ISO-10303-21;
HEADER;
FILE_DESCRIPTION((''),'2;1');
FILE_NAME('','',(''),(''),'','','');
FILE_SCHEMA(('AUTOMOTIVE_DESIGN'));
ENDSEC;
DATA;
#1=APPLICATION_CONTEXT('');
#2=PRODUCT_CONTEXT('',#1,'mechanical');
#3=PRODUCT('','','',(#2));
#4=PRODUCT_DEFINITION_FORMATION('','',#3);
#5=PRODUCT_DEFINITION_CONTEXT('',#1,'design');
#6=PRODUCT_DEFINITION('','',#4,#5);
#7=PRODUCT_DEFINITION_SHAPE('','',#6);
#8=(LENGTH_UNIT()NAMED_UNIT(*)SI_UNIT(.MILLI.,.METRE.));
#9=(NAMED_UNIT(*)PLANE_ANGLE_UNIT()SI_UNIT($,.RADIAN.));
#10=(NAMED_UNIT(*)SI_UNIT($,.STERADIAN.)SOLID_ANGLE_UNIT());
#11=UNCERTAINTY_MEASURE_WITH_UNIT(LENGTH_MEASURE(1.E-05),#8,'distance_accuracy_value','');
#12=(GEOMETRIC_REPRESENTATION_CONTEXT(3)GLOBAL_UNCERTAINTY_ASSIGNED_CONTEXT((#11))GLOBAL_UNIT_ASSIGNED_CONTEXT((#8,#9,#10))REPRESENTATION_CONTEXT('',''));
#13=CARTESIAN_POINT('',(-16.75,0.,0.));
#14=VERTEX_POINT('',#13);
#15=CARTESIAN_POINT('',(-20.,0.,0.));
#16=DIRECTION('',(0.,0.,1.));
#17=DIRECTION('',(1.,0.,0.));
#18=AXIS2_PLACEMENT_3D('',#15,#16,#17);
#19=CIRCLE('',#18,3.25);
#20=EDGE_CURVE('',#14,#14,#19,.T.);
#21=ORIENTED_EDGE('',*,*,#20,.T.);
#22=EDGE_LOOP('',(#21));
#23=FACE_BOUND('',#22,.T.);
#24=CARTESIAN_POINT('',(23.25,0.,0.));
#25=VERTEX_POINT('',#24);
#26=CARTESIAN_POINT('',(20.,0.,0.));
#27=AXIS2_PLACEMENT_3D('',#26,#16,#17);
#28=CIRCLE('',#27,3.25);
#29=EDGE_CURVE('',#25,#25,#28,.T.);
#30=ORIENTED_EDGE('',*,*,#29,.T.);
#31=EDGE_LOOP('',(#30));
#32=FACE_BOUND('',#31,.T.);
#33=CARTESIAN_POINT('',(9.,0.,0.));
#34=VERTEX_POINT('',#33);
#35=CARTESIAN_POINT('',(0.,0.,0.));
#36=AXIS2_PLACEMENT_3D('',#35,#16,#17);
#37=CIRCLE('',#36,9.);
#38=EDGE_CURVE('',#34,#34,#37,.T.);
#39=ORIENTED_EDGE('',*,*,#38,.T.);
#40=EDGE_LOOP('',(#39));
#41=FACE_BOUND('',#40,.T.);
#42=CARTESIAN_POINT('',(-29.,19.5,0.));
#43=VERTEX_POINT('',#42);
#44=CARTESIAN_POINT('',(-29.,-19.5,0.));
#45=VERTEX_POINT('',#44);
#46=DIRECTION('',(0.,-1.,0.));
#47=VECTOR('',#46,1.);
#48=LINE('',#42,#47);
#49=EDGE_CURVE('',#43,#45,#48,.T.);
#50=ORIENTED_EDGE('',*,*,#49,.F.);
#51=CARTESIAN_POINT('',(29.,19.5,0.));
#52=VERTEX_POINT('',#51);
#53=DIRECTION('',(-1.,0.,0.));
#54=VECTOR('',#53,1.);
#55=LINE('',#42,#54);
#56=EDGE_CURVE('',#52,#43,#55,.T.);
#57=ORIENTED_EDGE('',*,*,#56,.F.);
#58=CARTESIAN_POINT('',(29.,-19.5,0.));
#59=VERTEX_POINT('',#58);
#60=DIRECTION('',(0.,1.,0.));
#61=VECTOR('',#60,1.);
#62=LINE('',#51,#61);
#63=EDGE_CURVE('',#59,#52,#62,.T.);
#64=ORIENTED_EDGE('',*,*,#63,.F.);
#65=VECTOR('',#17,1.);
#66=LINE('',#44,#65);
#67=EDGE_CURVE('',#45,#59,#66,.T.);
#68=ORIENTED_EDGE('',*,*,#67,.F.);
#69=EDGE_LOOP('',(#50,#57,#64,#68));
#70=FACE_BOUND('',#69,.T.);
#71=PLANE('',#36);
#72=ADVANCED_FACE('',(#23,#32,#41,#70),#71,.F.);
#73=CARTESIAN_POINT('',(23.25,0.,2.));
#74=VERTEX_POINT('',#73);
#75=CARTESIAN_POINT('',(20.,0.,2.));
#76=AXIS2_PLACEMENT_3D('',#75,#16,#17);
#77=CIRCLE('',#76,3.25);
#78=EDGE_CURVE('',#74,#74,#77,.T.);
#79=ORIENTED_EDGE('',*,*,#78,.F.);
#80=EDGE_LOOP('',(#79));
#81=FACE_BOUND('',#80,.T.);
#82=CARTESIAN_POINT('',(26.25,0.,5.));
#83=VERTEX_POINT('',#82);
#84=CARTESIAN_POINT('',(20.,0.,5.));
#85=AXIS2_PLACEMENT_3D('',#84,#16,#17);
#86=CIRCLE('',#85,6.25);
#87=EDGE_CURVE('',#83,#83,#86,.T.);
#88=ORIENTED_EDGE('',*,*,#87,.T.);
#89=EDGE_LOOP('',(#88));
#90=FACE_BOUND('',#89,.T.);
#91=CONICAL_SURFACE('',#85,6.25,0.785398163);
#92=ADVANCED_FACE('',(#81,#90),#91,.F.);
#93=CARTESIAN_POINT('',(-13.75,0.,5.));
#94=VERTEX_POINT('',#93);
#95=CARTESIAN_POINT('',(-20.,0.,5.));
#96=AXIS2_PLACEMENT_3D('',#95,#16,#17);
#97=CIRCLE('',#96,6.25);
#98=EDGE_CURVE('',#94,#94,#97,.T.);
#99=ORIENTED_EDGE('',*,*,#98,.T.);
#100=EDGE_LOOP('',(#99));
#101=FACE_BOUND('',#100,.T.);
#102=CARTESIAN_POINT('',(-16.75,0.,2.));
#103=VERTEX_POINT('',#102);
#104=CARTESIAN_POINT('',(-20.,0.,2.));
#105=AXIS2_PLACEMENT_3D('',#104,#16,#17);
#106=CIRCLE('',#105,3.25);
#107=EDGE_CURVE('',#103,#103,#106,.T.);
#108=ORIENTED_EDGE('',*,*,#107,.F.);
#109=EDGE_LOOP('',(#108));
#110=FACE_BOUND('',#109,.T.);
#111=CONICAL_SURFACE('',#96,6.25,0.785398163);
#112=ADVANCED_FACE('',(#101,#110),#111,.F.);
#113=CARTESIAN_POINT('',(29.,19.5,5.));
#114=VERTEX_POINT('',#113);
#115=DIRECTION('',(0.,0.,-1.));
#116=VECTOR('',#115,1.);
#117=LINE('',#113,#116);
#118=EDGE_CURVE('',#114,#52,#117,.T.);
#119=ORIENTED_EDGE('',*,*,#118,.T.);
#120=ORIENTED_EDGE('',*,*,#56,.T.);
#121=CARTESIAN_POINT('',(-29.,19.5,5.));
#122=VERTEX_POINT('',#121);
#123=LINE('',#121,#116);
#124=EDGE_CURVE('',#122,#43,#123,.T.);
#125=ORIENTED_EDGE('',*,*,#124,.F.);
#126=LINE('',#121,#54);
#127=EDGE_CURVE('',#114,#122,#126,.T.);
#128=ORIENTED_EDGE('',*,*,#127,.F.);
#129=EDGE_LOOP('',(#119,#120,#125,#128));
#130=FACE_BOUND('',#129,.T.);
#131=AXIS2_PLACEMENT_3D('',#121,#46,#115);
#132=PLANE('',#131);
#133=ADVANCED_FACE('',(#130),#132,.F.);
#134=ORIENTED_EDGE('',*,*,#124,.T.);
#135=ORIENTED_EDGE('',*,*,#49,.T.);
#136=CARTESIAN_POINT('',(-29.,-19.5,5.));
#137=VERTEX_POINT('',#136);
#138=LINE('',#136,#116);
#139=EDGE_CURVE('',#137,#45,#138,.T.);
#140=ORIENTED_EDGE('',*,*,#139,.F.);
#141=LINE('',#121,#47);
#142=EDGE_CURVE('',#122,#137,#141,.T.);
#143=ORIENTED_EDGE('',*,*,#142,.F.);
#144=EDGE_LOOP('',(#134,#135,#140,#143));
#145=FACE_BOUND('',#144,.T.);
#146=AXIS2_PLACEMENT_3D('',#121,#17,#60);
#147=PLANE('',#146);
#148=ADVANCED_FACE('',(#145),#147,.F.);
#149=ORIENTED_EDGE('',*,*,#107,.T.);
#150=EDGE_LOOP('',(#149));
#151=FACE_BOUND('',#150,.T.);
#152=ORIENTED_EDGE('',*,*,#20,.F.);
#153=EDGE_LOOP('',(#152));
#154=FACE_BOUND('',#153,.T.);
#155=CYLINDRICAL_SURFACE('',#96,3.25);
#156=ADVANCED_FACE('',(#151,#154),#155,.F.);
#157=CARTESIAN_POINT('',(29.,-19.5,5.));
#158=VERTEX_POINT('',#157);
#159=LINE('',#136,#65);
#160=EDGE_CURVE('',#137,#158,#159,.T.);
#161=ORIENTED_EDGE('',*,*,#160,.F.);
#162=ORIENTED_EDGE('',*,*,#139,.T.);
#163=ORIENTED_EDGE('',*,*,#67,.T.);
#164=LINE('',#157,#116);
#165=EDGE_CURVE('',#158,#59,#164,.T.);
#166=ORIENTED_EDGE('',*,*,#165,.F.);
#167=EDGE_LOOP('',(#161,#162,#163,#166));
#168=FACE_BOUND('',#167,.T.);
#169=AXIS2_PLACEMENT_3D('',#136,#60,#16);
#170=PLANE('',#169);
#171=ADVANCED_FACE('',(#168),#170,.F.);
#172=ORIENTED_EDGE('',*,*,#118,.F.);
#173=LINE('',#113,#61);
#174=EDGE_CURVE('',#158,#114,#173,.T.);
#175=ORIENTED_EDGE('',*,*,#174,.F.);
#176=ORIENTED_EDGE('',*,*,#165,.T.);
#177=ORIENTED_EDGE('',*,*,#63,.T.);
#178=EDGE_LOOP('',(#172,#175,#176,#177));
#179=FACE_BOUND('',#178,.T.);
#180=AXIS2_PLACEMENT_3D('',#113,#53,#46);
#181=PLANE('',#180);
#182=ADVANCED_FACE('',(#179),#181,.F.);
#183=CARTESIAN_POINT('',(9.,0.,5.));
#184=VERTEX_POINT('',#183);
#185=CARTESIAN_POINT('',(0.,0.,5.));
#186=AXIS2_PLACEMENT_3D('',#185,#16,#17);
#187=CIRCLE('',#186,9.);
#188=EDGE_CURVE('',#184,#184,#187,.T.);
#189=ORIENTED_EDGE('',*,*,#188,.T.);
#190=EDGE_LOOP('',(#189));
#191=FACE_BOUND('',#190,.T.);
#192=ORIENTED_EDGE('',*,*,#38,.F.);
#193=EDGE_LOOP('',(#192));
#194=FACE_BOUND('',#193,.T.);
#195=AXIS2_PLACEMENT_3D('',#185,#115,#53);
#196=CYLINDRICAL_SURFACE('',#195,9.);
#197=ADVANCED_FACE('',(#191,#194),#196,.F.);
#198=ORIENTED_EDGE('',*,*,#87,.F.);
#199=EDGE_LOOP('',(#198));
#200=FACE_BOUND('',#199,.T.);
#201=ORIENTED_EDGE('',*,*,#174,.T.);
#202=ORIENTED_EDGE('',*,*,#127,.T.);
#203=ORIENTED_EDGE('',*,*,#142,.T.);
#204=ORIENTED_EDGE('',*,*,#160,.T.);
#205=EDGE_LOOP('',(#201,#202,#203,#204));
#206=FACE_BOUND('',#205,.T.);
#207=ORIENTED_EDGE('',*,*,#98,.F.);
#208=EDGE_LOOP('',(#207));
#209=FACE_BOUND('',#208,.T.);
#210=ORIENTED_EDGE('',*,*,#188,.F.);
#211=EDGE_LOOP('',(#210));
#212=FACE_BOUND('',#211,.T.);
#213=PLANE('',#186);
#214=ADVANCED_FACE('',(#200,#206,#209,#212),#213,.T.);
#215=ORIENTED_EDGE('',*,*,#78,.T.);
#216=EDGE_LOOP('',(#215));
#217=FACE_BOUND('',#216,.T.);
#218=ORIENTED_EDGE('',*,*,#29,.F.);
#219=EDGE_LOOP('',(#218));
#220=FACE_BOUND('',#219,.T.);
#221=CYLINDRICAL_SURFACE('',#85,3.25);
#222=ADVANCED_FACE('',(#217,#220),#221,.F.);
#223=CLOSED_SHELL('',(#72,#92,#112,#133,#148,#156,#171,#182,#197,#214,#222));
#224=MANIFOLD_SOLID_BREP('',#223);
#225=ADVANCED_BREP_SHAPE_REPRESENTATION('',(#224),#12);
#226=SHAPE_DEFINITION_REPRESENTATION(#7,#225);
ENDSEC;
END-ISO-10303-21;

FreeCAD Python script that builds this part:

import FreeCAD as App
import Part
import Sketcher

V = App.Vector
Q = App.Units.Quantity

doc = App.newDocument("Part")
body = doc.addObject("PartDesign::Body", "Body")

sketch1 = body.newObject("Sketcher::SketchObject", "Sketch")
sketch1.AttachmentSupport = (doc.getObject("XY_Plane"), [""])
sketch1.MapMode = "FlatFace"
sketch1.addGeometry([
    Part.LineSegment(V(-29, 20, 0), V(-29, -20, 0)),
    Part.LineSegment(V(-29, -20, 0), V(29, -20, 0)),
    Part.LineSegment(V(29, -20, 0), V(29, 20, 0)),
    Part.LineSegment(V(29, 20, 0), V(-29, 20, 0)),
    Part.Circle(V(0, 0, 0), V(0, 0, 1), 9),
], False)
sketch1.addConstraint([
    Sketcher.Constraint("Coincident", 0, 2, 1, 1),
    Sketcher.Constraint("Coincident", 1, 2, 2, 1),
    Sketcher.Constraint("Coincident", 2, 2, 3, 1),
    Sketcher.Constraint("Coincident", 3, 2, 0, 1),
    Sketcher.Constraint("Vertical", 0),
    Sketcher.Constraint("Horizontal", 1),
    Sketcher.Constraint("Vertical", 2),
    Sketcher.Constraint("Horizontal", 3),
    Sketcher.Constraint("Coincident", 4, 3, -1, 1),
    Sketcher.Constraint("Symmetric", 0, 2, 2, 2, -1, 1),
    Sketcher.Constraint("Diameter", 4, 18.0),
    Sketcher.Constraint("DistanceX", 1, 1, 1, 2, 58.0),
    Sketcher.Constraint("DistanceY", 0, 2, 0, 1, 39.0),
])
pad1 = body.newObject("PartDesign::Pad", "Pad")
pad1.Profile = sketch1
pad1.Length = 5

sketch2 = body.newObject("Sketcher::SketchObject", "Sketch001")
sketch2.AttachmentSupport = (doc.getObject("YZ_Plane"), [""])
sketch2.MapMode = "FlatFace"
sketch2.AttachmentOffset = App.Placement(V(0, 0, 20), App.Rotation())
sketch2.addGeometry([
    Part.LineSegment(V(0, 0, 0), V(0, 5, 0)),
    Part.LineSegment(V(0, 5, 0), V(-6.2, 5, 0)),
    Part.LineSegment(V(-6.2, 5, 0), V(-3.2, 2, 0)),
    Part.LineSegment(V(-3.2, 2, 0), V(-3.2, 0, 0)),
    Part.LineSegment(V(-3.2, 0, 0), V(0, 0, 0)),
], False)
sketch2.addConstraint([
    Sketcher.Constraint("Coincident", 0, 2, 1, 1),
    Sketcher.Constraint("Coincident", 1, 2, 2, 1),
    Sketcher.Constraint("Coincident", 2, 2, 3, 1),
    Sketcher.Constraint("Coincident", 3, 2, 4, 1),
    Sketcher.Constraint("Coincident", 4, 2, 0, 1),
    Sketcher.Constraint("Vertical", 0),
    Sketcher.Constraint("Horizontal", 1),
    Sketcher.Constraint("Vertical", 3),
    Sketcher.Constraint("Horizontal", 4),
    Sketcher.Constraint("Coincident", 4, 2, -1, 1),
    Sketcher.Constraint("DistanceY", 0, 1, 0, 2, 5.0),
    Sketcher.Constraint("DistanceY", 3, 2, 3, 1, 2.0),
    Sketcher.Constraint("Angle", 2, Q("-45 deg")),
    Sketcher.Constraint("DistanceX", 1, 2, 1, 1, 6.25),
])
groove = body.newObject("PartDesign::Groove", "Groove")
groove.Profile = sketch2
groove.ReferenceAxis = (sketch2, ["V_Axis"])
groove.Angle = 360
doc.recompute()

linearpattern = body.newObject("PartDesign::LinearPattern", "LinearPattern")
linearpattern.Originals = [groove]
linearpattern.Direction = (doc.getObject("X_Axis"), [""])
linearpattern.Mode = "offset"
linearpattern.Offset = 40
linearpattern.Occurrences = 2
linearpattern.Reversed = True
body.Tip = linearpattern

doc.recompute()
